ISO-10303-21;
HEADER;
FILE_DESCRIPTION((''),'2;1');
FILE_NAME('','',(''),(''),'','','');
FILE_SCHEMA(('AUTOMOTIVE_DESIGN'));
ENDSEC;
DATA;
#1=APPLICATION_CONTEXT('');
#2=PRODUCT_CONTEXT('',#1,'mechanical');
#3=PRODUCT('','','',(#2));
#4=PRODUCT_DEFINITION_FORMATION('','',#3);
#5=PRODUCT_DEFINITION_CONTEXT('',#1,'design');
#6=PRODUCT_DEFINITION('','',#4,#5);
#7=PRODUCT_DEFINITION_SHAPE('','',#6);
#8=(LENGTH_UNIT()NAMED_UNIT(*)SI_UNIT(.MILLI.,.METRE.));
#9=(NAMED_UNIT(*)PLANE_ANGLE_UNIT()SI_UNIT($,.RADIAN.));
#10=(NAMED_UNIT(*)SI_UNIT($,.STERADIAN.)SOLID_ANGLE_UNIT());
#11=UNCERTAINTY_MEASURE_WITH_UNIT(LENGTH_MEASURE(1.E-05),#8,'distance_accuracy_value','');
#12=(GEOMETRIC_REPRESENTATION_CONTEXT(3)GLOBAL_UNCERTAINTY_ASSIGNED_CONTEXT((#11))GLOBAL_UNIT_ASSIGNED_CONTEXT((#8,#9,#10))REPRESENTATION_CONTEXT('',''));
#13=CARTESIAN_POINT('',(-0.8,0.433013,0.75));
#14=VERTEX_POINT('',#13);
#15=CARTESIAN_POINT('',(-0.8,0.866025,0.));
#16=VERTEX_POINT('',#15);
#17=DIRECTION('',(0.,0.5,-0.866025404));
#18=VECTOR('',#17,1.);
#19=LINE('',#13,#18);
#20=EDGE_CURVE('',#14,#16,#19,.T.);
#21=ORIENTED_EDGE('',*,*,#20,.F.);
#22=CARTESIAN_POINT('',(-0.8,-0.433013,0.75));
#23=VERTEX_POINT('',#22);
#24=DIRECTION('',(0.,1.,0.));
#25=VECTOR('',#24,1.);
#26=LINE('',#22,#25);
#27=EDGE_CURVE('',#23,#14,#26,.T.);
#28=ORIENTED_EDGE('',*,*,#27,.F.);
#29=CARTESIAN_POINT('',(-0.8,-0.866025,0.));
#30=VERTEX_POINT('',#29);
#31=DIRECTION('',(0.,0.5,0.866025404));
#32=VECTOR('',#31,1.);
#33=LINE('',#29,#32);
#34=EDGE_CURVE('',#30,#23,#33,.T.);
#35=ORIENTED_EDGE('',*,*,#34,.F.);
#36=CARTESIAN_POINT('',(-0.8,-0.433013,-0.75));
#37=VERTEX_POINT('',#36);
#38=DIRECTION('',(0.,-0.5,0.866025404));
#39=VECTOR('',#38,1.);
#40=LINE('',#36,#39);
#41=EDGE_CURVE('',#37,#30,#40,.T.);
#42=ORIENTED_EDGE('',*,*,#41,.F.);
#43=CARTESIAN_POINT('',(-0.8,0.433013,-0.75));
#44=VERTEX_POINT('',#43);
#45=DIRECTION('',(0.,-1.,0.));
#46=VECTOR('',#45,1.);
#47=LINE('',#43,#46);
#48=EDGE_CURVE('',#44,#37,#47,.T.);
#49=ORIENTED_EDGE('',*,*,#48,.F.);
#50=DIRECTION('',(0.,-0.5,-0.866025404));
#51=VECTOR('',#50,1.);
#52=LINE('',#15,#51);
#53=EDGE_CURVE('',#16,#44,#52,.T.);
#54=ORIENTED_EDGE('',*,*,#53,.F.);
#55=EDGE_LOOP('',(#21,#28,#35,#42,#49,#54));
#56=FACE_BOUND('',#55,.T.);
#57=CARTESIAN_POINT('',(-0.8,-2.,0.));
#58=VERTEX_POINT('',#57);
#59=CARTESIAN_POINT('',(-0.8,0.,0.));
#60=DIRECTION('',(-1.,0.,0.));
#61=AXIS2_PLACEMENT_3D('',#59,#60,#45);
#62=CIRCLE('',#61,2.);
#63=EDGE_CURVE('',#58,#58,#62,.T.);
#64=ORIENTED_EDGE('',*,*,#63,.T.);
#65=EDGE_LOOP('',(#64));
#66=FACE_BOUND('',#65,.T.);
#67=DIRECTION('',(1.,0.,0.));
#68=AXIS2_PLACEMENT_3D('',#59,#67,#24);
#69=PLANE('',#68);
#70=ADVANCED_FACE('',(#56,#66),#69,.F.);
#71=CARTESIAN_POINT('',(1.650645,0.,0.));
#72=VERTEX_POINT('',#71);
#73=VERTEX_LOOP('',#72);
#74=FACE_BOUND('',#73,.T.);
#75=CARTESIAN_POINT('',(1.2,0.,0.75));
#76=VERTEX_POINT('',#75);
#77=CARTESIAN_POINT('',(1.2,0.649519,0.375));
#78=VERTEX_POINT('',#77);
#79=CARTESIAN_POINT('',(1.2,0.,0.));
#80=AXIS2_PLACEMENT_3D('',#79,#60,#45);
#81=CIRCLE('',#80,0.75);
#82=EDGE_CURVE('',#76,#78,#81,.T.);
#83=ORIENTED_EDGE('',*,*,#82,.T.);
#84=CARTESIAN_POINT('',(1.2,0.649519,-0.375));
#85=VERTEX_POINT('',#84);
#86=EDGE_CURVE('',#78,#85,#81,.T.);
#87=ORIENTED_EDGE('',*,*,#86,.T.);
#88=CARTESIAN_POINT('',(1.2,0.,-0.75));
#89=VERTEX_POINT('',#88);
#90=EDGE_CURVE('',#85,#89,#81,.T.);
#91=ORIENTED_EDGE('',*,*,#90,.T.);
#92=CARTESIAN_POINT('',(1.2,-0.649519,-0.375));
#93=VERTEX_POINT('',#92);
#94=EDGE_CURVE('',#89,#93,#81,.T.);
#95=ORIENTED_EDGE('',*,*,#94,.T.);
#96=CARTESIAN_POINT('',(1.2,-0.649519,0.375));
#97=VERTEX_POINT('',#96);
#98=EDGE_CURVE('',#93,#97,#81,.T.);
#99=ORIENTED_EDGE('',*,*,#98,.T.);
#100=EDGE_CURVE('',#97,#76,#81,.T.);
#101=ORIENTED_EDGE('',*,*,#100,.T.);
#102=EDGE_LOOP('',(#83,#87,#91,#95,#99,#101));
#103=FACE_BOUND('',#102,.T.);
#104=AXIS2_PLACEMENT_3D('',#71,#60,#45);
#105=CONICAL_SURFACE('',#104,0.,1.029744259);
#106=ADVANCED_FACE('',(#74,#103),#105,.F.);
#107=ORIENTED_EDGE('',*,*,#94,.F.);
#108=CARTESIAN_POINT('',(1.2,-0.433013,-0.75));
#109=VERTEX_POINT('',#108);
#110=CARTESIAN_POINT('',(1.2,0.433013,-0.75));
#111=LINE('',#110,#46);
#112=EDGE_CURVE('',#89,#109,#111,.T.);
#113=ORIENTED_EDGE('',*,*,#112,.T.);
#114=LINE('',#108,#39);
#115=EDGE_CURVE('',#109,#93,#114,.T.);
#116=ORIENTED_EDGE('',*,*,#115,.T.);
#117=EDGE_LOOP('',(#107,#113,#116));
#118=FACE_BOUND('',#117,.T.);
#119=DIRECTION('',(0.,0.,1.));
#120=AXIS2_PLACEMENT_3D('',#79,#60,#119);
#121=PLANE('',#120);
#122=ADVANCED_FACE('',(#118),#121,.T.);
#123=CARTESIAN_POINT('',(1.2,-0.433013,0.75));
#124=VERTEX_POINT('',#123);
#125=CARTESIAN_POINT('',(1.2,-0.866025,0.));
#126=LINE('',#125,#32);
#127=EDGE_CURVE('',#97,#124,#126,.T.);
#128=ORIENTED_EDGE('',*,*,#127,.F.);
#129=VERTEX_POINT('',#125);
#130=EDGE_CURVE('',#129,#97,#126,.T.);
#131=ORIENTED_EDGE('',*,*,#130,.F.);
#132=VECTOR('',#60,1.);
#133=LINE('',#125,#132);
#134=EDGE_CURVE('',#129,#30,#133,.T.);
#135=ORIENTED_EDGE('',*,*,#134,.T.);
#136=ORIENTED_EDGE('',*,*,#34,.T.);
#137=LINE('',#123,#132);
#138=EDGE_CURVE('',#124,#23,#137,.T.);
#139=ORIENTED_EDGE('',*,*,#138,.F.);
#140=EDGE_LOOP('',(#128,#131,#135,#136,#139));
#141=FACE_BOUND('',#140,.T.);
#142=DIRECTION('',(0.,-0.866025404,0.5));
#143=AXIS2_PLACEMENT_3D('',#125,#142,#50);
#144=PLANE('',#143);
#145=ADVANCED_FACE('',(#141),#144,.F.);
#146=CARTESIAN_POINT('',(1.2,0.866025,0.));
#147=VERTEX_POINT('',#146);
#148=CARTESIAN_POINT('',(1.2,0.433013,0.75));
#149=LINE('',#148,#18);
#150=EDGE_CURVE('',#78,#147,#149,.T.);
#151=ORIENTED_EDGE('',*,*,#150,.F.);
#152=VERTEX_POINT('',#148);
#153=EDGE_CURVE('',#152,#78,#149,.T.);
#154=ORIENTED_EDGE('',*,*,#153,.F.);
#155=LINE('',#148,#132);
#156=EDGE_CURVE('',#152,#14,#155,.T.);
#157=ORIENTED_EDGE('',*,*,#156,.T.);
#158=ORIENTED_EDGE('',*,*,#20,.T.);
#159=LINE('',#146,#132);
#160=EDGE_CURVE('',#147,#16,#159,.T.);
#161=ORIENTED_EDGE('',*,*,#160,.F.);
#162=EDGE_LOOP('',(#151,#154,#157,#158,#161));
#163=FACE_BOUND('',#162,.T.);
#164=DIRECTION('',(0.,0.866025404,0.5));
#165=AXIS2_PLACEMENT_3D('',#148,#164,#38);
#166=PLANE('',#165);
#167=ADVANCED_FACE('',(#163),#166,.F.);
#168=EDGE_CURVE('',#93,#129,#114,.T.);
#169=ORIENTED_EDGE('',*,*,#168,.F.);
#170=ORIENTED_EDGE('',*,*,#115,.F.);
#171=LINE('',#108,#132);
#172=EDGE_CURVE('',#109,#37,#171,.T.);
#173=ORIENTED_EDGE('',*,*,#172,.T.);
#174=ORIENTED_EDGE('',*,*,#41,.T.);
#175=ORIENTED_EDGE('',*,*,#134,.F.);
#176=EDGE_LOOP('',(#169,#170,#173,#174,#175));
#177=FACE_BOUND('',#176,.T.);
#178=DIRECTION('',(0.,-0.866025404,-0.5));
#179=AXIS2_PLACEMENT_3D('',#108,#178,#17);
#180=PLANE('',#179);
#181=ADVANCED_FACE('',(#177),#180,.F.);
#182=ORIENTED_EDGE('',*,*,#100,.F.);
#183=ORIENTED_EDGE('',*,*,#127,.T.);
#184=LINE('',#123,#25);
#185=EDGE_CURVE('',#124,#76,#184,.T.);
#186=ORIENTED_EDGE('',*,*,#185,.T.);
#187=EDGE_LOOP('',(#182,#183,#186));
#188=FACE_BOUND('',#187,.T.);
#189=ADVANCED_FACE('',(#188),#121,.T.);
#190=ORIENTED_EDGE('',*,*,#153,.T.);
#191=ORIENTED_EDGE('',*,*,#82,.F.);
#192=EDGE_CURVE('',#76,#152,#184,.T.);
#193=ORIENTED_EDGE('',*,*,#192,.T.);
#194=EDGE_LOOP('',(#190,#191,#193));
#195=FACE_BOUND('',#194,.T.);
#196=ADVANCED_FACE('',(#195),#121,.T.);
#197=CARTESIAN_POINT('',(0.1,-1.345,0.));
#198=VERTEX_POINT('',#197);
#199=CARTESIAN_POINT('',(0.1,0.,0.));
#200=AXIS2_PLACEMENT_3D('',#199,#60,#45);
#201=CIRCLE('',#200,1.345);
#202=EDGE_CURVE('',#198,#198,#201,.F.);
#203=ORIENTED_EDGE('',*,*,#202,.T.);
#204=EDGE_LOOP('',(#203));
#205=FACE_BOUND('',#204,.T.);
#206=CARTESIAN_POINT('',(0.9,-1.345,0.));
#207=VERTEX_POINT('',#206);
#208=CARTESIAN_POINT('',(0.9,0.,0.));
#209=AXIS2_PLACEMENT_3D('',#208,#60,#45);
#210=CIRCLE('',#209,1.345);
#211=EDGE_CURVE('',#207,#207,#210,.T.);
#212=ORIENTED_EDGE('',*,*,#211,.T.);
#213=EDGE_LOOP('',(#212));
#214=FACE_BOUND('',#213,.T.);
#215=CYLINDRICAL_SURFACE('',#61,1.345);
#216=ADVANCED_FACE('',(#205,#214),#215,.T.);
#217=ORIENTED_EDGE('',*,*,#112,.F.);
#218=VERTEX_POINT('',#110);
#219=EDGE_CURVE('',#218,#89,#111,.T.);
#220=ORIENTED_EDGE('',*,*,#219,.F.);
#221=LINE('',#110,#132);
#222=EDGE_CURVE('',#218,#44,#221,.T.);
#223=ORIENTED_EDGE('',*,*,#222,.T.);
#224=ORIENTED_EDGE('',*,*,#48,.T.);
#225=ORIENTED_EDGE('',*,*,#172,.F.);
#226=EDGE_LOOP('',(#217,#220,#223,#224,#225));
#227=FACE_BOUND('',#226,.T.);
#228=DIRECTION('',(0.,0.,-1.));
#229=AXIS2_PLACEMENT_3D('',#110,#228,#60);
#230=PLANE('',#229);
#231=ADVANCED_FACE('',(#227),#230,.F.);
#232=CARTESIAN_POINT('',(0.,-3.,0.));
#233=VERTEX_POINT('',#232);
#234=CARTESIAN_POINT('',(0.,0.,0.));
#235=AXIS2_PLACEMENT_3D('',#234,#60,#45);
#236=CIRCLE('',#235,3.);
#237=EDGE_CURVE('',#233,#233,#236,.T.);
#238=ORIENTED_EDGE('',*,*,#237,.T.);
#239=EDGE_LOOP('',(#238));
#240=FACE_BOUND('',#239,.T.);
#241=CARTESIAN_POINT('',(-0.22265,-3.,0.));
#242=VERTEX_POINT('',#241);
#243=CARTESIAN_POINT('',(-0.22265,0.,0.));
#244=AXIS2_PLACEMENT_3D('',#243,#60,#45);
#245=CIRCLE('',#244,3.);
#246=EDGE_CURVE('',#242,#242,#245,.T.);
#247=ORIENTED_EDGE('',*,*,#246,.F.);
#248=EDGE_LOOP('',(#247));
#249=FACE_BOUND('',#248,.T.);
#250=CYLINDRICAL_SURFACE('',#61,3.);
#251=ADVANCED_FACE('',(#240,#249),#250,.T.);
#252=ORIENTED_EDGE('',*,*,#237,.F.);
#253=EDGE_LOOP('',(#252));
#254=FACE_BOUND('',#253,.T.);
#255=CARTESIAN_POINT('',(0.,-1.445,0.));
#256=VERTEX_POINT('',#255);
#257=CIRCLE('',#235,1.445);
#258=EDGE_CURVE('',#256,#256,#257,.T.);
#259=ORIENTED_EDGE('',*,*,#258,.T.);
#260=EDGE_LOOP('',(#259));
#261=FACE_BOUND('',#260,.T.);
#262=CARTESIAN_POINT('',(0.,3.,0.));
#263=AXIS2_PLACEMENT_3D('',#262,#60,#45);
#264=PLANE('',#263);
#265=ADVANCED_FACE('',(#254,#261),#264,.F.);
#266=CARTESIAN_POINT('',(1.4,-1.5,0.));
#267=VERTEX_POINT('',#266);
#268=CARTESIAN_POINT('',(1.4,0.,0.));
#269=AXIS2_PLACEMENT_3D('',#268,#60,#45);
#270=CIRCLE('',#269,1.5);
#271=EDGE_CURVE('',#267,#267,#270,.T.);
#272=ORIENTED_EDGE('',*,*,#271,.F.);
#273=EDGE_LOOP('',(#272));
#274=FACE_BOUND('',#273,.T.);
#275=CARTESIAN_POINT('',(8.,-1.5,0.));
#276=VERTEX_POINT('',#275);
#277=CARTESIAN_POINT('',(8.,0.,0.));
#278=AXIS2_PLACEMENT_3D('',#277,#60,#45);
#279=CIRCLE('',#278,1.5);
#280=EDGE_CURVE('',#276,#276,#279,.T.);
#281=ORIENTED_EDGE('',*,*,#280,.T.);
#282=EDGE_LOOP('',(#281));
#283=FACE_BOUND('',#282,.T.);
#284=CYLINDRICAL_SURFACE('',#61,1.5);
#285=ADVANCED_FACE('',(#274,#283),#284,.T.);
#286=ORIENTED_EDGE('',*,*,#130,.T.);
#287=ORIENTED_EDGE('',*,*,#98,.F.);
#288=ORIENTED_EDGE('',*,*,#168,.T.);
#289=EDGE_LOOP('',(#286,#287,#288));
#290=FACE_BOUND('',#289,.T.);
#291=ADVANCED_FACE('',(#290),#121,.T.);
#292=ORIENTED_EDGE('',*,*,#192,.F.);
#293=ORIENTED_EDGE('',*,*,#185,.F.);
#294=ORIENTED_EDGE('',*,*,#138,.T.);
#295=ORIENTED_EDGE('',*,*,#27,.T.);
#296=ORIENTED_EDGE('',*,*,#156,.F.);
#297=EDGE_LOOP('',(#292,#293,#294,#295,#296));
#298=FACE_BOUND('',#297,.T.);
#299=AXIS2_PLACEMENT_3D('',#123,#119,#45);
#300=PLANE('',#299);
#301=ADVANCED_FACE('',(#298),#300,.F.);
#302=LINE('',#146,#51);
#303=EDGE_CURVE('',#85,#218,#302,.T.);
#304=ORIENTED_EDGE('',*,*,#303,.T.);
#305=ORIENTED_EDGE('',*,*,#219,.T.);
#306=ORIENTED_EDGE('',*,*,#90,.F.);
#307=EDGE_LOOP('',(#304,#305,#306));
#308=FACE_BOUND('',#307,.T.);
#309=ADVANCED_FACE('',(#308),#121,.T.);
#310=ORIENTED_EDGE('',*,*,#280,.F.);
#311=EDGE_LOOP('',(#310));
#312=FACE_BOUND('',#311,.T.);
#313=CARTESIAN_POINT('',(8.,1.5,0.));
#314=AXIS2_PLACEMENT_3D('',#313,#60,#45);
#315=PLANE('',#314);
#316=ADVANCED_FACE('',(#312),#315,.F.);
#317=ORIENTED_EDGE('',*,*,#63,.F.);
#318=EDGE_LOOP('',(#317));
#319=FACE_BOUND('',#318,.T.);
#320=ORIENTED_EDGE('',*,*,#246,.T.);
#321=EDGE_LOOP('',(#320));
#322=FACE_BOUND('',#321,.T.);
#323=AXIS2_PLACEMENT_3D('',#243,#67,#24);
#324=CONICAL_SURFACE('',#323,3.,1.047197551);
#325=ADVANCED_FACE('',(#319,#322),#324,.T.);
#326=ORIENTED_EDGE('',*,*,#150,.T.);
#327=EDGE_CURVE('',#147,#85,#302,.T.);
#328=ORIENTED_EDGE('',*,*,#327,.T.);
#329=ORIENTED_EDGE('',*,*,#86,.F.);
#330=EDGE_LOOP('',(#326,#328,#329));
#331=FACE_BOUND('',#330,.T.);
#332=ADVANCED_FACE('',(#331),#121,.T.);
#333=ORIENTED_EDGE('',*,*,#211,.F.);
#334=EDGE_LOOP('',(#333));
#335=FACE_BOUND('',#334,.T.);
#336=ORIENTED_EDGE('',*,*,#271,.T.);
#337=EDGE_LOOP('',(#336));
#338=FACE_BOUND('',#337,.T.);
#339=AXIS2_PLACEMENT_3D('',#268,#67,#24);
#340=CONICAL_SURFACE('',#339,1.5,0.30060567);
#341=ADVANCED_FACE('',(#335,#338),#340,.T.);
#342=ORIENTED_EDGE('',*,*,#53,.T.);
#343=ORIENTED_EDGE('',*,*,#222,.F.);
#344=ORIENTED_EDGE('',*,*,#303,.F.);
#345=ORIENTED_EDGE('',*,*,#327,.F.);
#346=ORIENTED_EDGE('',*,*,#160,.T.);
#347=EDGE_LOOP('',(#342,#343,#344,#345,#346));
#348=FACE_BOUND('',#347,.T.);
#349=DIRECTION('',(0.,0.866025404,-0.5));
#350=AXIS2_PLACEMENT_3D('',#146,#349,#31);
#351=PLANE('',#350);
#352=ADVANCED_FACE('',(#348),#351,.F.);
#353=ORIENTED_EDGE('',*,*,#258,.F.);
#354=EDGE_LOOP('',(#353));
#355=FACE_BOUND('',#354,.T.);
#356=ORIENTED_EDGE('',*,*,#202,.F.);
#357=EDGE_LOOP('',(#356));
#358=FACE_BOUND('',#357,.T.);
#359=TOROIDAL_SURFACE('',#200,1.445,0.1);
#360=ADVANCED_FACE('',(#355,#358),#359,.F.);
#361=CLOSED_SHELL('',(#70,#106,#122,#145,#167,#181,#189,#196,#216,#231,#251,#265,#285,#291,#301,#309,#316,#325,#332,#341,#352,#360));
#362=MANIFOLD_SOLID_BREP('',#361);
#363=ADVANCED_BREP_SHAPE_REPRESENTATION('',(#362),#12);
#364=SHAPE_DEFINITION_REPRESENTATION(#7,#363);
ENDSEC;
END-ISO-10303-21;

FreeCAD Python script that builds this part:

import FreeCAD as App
import Part
import Sketcher

V = App.Vector
Q = App.Units.Quantity


def edges_at(feature, points):
    """Names of the edges that pass closest to the given points."""
    edges = feature.Shape.Edges
    near = lambda p: min(range(len(edges)), key=lambda i: edges[i].distToShape(Part.Vertex(*p))[0])
    return sorted({f"Edge{near(p) + 1}" for p in points})


def add_polygon(sketch, points):
    """Adds a closed chain of lines whose ends are joined by coincident constraints."""
    first, n = sketch.GeometryCount, len(points)
    for a, b in zip(points, points[1:] + points[:1]):
        sketch.addGeometry(Part.LineSegment(App.Vector(*a, 0), App.Vector(*b, 0)), False)
    for i in range(n):
        sketch.addConstraint(Sketcher.Constraint("Coincident", first + i, 2, first + (i + 1) % n, 1))

doc = App.newDocument("Part")
body = doc.addObject("PartDesign::Body", "Body")

# Sketch on XY plane
sketch1 = body.newObject("Sketcher::SketchObject", "Sketch")
sketch1.AttachmentSupport = (doc.getObject("XY_Plane"), [""])
sketch1.MapMode = "FlatFace"
add_polygon(sketch1, [(-0.8, 2), (-0.8, 0), (8, 0), (8, 1.5), (1.4, 1.5), (0.9, 1.34), (0, 1.34), (0, 3), (-0.22, 3)])  # lines 0-8
sketch1.addConstraint([
    Sketcher.Constraint("Vertical", 0),
    Sketcher.Constraint("Horizontal", 1),
    Sketcher.Constraint("Vertical", 2),
    Sketcher.Constraint("Horizontal", 3),
    Sketcher.Constraint("Horizontal", 5),
    Sketcher.Constraint("Vertical", 6),
    Sketcher.Constraint("Horizontal", 7),
    Sketcher.Constraint("PointOnObject", 0, 2, -1),
    Sketcher.Constraint("PointOnObject", 5, 2, -2),
    Sketcher.Constraint("DistanceY", 0, 2, 0, 1, Q("2 mm")),
    Sketcher.Constraint("Angle", 8, Q("-120 deg")),
    Sketcher.Constraint("DistanceX", 1, 1, 1, 2, Q("8.8 mm")),
    Sketcher.Constraint("DistanceX", 3, 2, 3, 1, Q("6.6 mm")),
    Sketcher.Constraint("DistanceX", 5, 2, 5, 1, Q("0.9 mm")),
    Sketcher.Constraint("DistanceY", 2, 1, 2, 2, Q("1.5 mm")),
    Sketcher.Constraint("DistanceX", -1, 1, 1, 2, Q("8 mm")),
    Sketcher.Constraint("DistanceY", -1, 1, 6, 2, Q("3 mm")),
    Sketcher.Constraint("DistanceY", 6, 1, 6, 2, Q("1.655 mm")),
])
revolution = body.newObject("PartDesign::Revolution", "Revolution")
revolution.Profile = sketch1
revolution.ReferenceAxis = (sketch1, ["H_Axis"])
revolution.Angle = 360
doc.recompute()

fillet = body.newObject("PartDesign::Fillet", "Fillet")
fillet.Base = (revolution, edges_at(revolution, [(0, 1.345, 0)]))
fillet.Radius = 0.1

# Sketch on YZ plane
sketch2 = body.newObject("Sketcher::SketchObject", "Sketch001")
sketch2.AttachmentSupport = (doc.getObject("YZ_Plane"), [""])
sketch2.MapMode = "FlatFace"
sketch2.AttachmentOffset = App.Placement(V(0, 0, -0.8), App.Rotation())
add_polygon(sketch2, [(0.9, 0), (0.4, -0.8), (-0.4, -0.8), (-0.9, 0), (-0.4, 0.8), (0.4, 0.8)])  # lines 0-5
sketch2.addConstraint([
    Sketcher.Constraint("Horizontal", 1),
    Sketcher.Constraint("Horizontal", 4),
    Sketcher.Constraint("Symmetric", 0, 2, 3, 2, -1, 1),
    Sketcher.Constraint("Symmetric", 2, 2, 5, 2, -1, 1),
    Sketcher.Constraint("PointOnObject", 2, 2, -1),
    Sketcher.Constraint("Parallel", 2, 5),
    Sketcher.Constraint("Vertical", 1, 2, 3, 2),
    Sketcher.Constraint("Angle", 0, Q("-120 deg")),
    Sketcher.Constraint("DistanceY", 1, 2, 3, 2, Q("1.5 mm")),
    Sketcher.Constraint("DistanceX", 1, 2, 1, 1, Q("0.866025 mm")),
])
pocket1 = body.newObject("PartDesign::Pocket", "Pocket")
pocket1.Profile = sketch2
pocket1.Length = 2
pocket1.Reversed = True

# Sketch on XY plane
sketch3 = body.newObject("Sketcher::SketchObject", "Sketch002")
sketch3.AttachmentSupport = (doc.getObject("XY_Plane"), [""])
sketch3.MapMode = "FlatFace"
add_polygon(sketch3, [(1.2, 0.75), (1.2, 0), (1.65, 0)])  # lines 0-2
sketch3.addConstraint([
    Sketcher.Constraint("Vertical", 0),
    Sketcher.Constraint("Horizontal", 1),
    Sketcher.Constraint("PointOnObject", 0, 2, -1),
    Sketcher.Constraint("Angle", 2, Q("121 deg")),
    Sketcher.Constraint("DistanceY", 0, 2, 0, 1, Q("0.75 mm")),
    Sketcher.Constraint("DistanceX", -1, 1, 0, 2, Q("1.2 mm")),
])
groove = body.newObject("PartDesign::Groove", "Groove")
groove.Profile = sketch3
groove.ReferenceAxis = (sketch3, ["H_Axis"])
groove.Angle = 360

doc.recompute()
